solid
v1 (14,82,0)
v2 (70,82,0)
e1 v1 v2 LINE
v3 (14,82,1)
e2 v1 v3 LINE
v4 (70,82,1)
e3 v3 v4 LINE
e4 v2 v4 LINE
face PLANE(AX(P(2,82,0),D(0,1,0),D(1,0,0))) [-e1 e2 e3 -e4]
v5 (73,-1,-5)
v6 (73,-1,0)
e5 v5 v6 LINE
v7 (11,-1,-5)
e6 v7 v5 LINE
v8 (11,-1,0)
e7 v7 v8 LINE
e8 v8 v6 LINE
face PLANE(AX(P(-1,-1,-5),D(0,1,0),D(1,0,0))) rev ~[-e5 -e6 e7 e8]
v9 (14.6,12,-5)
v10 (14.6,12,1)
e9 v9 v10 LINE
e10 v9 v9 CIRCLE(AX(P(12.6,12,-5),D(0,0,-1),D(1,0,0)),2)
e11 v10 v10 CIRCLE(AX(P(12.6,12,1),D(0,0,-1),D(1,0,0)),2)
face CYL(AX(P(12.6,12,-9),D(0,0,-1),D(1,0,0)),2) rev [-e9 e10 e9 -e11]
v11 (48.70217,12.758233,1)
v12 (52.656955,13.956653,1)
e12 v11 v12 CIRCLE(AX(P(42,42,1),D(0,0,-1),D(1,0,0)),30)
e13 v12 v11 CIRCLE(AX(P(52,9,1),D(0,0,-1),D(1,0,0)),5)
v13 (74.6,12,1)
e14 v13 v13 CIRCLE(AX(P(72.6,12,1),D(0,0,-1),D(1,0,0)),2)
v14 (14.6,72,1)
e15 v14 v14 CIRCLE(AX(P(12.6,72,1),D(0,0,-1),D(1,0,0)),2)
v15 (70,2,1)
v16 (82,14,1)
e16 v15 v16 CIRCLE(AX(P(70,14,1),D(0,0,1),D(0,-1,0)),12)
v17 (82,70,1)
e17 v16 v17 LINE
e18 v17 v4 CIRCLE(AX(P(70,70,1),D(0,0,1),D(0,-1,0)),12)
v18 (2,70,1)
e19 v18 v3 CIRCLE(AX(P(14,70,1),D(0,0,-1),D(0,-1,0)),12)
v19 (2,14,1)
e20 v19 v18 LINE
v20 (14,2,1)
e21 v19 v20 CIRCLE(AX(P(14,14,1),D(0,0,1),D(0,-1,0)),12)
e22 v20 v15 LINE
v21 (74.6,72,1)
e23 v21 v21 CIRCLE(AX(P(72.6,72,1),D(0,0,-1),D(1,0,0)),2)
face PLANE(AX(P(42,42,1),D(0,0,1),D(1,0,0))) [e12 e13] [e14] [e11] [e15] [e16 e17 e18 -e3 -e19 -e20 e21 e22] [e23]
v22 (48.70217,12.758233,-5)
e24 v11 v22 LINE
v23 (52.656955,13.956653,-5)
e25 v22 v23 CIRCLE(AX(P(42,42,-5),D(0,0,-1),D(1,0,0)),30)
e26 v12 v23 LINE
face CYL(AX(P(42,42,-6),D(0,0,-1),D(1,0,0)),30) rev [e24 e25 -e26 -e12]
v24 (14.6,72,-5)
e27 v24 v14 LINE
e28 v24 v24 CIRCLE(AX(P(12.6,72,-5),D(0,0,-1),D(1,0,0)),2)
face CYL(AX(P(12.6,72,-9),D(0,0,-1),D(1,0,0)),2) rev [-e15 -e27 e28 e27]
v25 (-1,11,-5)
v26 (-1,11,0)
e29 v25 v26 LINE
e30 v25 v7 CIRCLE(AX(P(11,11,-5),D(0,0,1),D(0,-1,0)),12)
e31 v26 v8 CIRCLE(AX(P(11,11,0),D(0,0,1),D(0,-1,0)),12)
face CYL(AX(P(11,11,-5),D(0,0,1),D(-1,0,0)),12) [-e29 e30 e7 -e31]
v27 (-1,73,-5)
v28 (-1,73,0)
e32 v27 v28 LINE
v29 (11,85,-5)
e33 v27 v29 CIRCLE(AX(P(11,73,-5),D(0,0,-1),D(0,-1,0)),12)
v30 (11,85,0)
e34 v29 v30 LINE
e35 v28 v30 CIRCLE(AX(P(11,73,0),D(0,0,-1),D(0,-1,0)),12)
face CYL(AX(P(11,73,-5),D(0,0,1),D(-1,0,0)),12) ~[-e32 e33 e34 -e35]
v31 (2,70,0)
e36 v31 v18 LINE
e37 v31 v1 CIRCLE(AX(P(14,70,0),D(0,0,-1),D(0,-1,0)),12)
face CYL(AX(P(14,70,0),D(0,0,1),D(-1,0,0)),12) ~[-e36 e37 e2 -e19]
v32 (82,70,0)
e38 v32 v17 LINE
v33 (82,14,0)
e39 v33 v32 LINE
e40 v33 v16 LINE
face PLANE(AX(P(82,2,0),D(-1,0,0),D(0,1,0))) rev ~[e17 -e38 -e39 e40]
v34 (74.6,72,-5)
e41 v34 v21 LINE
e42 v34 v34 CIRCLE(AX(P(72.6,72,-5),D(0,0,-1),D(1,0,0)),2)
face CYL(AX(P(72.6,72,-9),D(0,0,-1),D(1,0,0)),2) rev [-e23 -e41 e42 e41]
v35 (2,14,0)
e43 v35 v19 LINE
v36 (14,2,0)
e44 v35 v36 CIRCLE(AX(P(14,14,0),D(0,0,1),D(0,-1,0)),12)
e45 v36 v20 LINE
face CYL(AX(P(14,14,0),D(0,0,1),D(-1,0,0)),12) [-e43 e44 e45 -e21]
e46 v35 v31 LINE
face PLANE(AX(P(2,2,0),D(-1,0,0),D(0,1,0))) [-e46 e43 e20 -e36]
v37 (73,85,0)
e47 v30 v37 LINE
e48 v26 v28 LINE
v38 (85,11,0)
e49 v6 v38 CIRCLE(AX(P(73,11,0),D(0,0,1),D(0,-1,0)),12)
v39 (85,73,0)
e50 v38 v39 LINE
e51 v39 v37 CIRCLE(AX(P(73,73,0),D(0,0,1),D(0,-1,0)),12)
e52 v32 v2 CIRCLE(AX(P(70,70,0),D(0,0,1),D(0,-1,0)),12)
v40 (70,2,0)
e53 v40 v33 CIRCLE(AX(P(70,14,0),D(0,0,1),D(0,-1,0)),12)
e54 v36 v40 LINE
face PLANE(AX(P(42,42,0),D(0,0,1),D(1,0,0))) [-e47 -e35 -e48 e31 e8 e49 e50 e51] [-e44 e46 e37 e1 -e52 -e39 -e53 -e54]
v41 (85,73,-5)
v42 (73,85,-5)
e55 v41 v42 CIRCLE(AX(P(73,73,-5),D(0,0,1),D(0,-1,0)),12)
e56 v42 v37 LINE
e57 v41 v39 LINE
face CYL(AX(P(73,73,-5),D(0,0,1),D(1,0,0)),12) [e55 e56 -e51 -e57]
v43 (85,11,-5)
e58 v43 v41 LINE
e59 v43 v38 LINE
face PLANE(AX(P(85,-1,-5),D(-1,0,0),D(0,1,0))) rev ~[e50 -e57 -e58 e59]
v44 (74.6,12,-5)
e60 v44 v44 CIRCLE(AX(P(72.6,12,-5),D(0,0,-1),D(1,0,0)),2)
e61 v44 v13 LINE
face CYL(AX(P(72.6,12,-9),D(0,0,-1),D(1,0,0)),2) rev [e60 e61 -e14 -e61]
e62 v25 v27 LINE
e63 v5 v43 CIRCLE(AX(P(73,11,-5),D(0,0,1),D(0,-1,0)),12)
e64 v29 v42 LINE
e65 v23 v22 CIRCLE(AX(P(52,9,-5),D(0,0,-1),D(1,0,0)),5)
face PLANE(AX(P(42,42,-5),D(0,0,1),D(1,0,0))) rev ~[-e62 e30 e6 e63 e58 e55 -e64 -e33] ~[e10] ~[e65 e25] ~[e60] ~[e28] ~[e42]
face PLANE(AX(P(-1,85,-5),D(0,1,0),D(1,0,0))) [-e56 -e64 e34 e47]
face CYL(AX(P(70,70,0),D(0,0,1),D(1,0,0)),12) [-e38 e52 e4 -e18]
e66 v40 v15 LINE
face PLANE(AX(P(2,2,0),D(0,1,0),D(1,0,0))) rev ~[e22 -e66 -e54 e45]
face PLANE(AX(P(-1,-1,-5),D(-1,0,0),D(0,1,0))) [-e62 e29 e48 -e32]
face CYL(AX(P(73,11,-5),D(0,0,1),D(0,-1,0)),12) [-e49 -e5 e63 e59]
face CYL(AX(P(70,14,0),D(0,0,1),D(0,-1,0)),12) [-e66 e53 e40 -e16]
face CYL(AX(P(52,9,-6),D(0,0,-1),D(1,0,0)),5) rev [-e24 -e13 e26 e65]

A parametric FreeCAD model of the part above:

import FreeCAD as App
import Part
import Sketcher
Q = App.Units.Quantity


def edges_at(feature, points):
    """Names of the edges that pass closest to the given points."""
    edges = feature.Shape.Edges
    near = lambda p: min(range(len(edges)), key=lambda i: edges[i].distToShape(Part.Vertex(*p))[0])
    return sorted({f"Edge{near(p) + 1}" for p in points})

doc = App.newDocument("Part")
body = doc.addObject("PartDesign::Body", "Body")

sketch1 = body.newObject("Sketcher::SketchObject", "Sketch")
sketch1.AttachmentSupport = (doc.getObject("XY_Plane"), [""])
sketch1.MapMode = "FlatFace"
sketch1.AttachmentOffset = App.Placement(App.Vector(0, 0, -6), App.Rotation())
sketch1.addGeometry(Part.Circle(App.Vector(52, 9, 0), App.Vector(0, 0, 1), 5), False)
sketch1.addConstraint([
    Sketcher.Constraint("Diameter", 0, Q("10 mm")),
    Sketcher.Constraint("DistanceX", -1, 1, 0, 3, Q("52 mm")),
    Sketcher.Constraint("DistanceY", -1, 1, 0, 3, Q("9 mm")),
])
pad1 = body.newObject("PartDesign::Pad", "Pad")
pad1.Profile = sketch1
pad1.Length = 10
body2 = doc.addObject("PartDesign::Body", "Body001")

sketch2 = body2.newObject("Sketcher::SketchObject", "Sketch001")
sketch2.AttachmentSupport = (doc.getObject("XY_Plane001"), [""])
sketch2.MapMode = "FlatFace"
sketch2.AttachmentOffset = App.Placement(App.Vector(0, 0, -6), App.Rotation())
sketch2.addGeometry(Part.Circle(App.Vector(42, 42, 0), App.Vector(0, 0, 1), 30), False)
sketch2.addConstraint([
    Sketcher.Constraint("Diameter", 0, Q("60 mm")),
    Sketcher.Constraint("DistanceX", -1, 1, 0, 3, Q("42 mm")),
    Sketcher.Constraint("DistanceY", -1, 1, 0, 3, Q("42 mm")),
])
pad2 = body2.newObject("PartDesign::Pad", "Pad001")
pad2.Profile = sketch2
pad2.Length = 10
body3 = doc.addObject("PartDesign::Body", "Body002")

sketch3 = body3.newObject("Sketcher::SketchObject", "Sketch002")
sketch3.AttachmentSupport = (doc.getObject("XY_Plane002"), [""])
sketch3.MapMode = "FlatFace"
sketch3.AttachmentOffset = App.Placement(App.Vector(0, 0, -9), App.Rotation())
sketch3.addGeometry(Part.Circle(App.Vector(72.6, 72, 0), App.Vector(0, 0, 1), 2), False)
sketch3.addConstraint([
    Sketcher.Constraint("Diameter", 0, Q("4 mm")),
    Sketcher.Constraint("DistanceY", -1, 1, 0, 3, Q("72 mm")),
    Sketcher.Constraint("DistanceX", -1, 1, 0, 3, Q("72.6 mm")),
])
pad3 = body3.newObject("PartDesign::Pad", "Pad002")
pad3.Profile = sketch3
pad3.Length = 63
body4 = doc.addObject("PartDesign::Body", "Body003")

sketch4 = body4.newObject("Sketcher::SketchObject", "Sketch003")
sketch4.AttachmentSupport = (doc.getObject("XY_Plane003"), [""])
sketch4.MapMode = "FlatFace"
sketch4.AttachmentOffset = App.Placement(App.Vector(0, 0, -9), App.Rotation())
sketch4.addGeometry(Part.Circle(App.Vector(12.6, 12, 0), App.Vector(0, 0, 1), 2), False)
sketch4.addConstraint([
    Sketcher.Constraint("Diameter", 0, Q("4 mm")),
    Sketcher.Constraint("DistanceY", -1, 1, 0, 3, Q("12 mm")),
    Sketcher.Constraint("DistanceX", -1, 1, 0, 3, Q("12.6 mm")),
])
pad4 = body4.newObject("PartDesign::Pad", "Pad003")
pad4.Profile = sketch4
pad4.Length = 63
body5 = doc.addObject("PartDesign::Body", "Body004")

sketch5 = body5.newObject("Sketcher::SketchObject", "Sketch004")
sketch5.AttachmentSupport = (doc.getObject("XY_Plane004"), [""])
sketch5.MapMode = "FlatFace"
sketch5.AttachmentOffset = App.Placement(App.Vector(0, 0, -9), App.Rotation())
sketch5.addGeometry(Part.Circle(App.Vector(12.6, 72, 0), App.Vector(0, 0, 1), 2), False)
sketch5.addConstraint([
    Sketcher.Constraint("Diameter", 0, Q("4 mm")),
    Sketcher.Constraint("DistanceY", -1, 1, 0, 3, Q("72 mm")),
    Sketcher.Constraint("DistanceX", -1, 1, 0, 3, Q("12.6 mm")),
])
pad5 = body5.newObject("PartDesign::Pad", "Pad004")
pad5.Profile = sketch5
pad5.Length = 63
body6 = doc.addObject("PartDesign::Body", "Body005")
body6.AllowCompound = True

sketch6 = body6.newObject("Sketcher::SketchObject", "Sketch005")
sketch6.AttachmentSupport = (doc.getObject("XY_Plane005"), [""])
sketch6.MapMode = "FlatFace"
sketch6.AttachmentOffset = App.Placement(App.Vector(0, 0, -9), App.Rotation())
sketch6.addGeometry(Part.Circle(App.Vector(72.6, 12, 0), App.Vector(0, 0, 1), 2), False)
sketch6.addConstraint([
    Sketcher.Constraint("Diameter", 0, Q("4 mm")),
    Sketcher.Constraint("DistanceY", -1, 1, 0, 3, Q("12 mm")),
    Sketcher.Constraint("DistanceX", -1, 1, 0, 3, Q("72.6 mm")),
])
pad6 = body6.newObject("PartDesign::Pad", "Pad005")
pad6.Profile = sketch6
pad6.Length = 63
doc.recompute()

boolean = body6.newObject("PartDesign::Boolean", "Boolean")
boolean.Type = "Fuse"
boolean.addObjects([body])
doc.recompute()

boolean2 = body6.newObject("PartDesign::Boolean", "Boolean001")
boolean2.Type = "Fuse"
boolean2.addObjects([body2])
doc.recompute()

boolean3 = body6.newObject("PartDesign::Boolean", "Boolean002")
boolean3.Type = "Fuse"
boolean3.addObjects([body3])
doc.recompute()

boolean4 = body6.newObject("PartDesign::Boolean", "Boolean003")
boolean4.Type = "Fuse"
boolean4.addObjects([body4])
doc.recompute()

boolean5 = body6.newObject("PartDesign::Boolean", "Boolean004")
boolean5.Type = "Fuse"
boolean5.addObjects([body5])
body7 = doc.addObject("PartDesign::Body", "Body006")

sketch7 = body7.newObject("Sketcher::SketchObject", "Sketch006")
sketch7.AttachmentSupport = (doc.getObject("XY_Plane006"), [""])
sketch7.MapMode = "FlatFace"
sketch7.addGeometry([
    Part.LineSegment(App.Vector(0, 86, 0), App.Vector(0, 0, 0)),
    Part.LineSegment(App.Vector(0, 0, 0), App.Vector(86, 0, 0)),
    Part.LineSegment(App.Vector(86, 0, 0), App.Vector(86, 86, 0)),
    Part.LineSegment(App.Vector(86, 86, 0), App.Vector(0, 86, 0)),
], False)
sketch7.addConstraint([
    Sketcher.Constraint("Coincident", 0, 2, 1, 1),
    Sketcher.Constraint("Coincident", 1, 2, 2, 1),
    Sketcher.Constraint("Coincident", 2, 2, 3, 1),
    Sketcher.Constraint("Coincident", 3, 2, 0, 1),
    Sketcher.Constraint("Vertical", 0),
    Sketcher.Constraint("Horizontal", 1),
    Sketcher.Constraint("Vertical", 2),
    Sketcher.Constraint("Horizontal", 3),
    Sketcher.Constraint("Coincident", 0, 2, -1, 1),
    Sketcher.Constraint("Equal", 3, 0),
    Sketcher.Constraint("DistanceX", 1, 1, 1, 2, Q("86 mm")),
])
pad7 = body7.newObject("PartDesign::Pad", "Pad006")
pad7.Profile = sketch7
pad7.Length = 5
doc.recompute()

fillet = body7.newObject("PartDesign::Fillet", "Fillet")
fillet.Base = (pad7, edges_at(pad7, [
    (0, 0, 2.5),
    (0, 86, 2.5),
    (86, 0, 2.5),
    (86, 86, 2.5),
]))
fillet.Radius = 12
body8 = doc.addObject("PartDesign::Body", "Body007")
doc.recompute()

body7.Placement = App.Placement(App.Vector(-3, -3, -5), App.Rotation(App.Vector(0, 0, 1), 0))
boolean6 = body8.newObject("PartDesign::Boolean", "Boolean005")
boolean6.Type = "Fuse"
boolean6.addObjects([body7])
body9 = doc.addObject("PartDesign::Body", "Body008")

sketch8 = body9.newObject("Sketcher::SketchObject", "Sketch007")
sketch8.AttachmentSupport = (doc.getObject("XY_Plane008"), [""])
sketch8.MapMode = "FlatFace"
sketch8.addGeometry([
    Part.LineSegment(App.Vector(0, 80, 0), App.Vector(0, 0, 0)),
    Part.LineSegment(App.Vector(0, 0, 0), App.Vector(80, 0, 0)),
    Part.LineSegment(App.Vector(80, 0, 0), App.Vector(80, 80, 0)),
    Part.LineSegment(App.Vector(80, 80, 0), App.Vector(0, 80, 0)),
], False)
sketch8.addConstraint([
    Sketcher.Constraint("Coincident", 0, 2, 1, 1),
    Sketcher.Constraint("Coincident", 1, 2, 2, 1),
    Sketcher.Constraint("Coincident", 2, 2, 3, 1),
    Sketcher.Constraint("Coincident", 3, 2, 0, 1),
    Sketcher.Constraint("Vertical", 0),
    Sketcher.Constraint("Horizontal", 1),
    Sketcher.Constraint("Vertical", 2),
    Sketcher.Constraint("Horizontal", 3),
    Sketcher.Constraint("Coincident", 0, 2, -1, 1),
    Sketcher.Constraint("Equal", 3, 0),
    Sketcher.Constraint("DistanceX", 1, 1, 1, 2, Q("80 mm")),
])
pad8 = body9.newObject("PartDesign::Pad", "Pad007")
pad8.Profile = sketch8
pad8.Length = 1
doc.recompute()

fillet2 = body9.newObject("PartDesign::Fillet", "Fillet001")
fillet2.Base = (pad8, edges_at(pad8, [
    (0, 0, 0.5),
    (0, 80, 0.5),
    (80, 0, 0.5),
    (80, 80, 0.5),
]))
fillet2.Radius = 12
doc.recompute()

boolean7 = body9.newObject("PartDesign::Boolean", "Boolean006")
boolean7.Type = "Fuse"
boolean7.addObjects([body8])
body10 = doc.addObject("PartDesign::Body", "Body009")
doc.recompute()

body9.Placement = App.Placement(App.Vector(2, 2, 0), App.Rotation(App.Vector(0, 0, 1), 0))
boolean8 = body10.newObject("PartDesign::Boolean", "Boolean007")
boolean8.Type = "Fuse"
boolean8.addObjects([body9])
doc.recompute()

boolean9 = body10.newObject("PartDesign::Boolean", "Boolean008")
boolean9.Type = "Cut"
boolean9.addObjects([body6])

doc.recompute()
